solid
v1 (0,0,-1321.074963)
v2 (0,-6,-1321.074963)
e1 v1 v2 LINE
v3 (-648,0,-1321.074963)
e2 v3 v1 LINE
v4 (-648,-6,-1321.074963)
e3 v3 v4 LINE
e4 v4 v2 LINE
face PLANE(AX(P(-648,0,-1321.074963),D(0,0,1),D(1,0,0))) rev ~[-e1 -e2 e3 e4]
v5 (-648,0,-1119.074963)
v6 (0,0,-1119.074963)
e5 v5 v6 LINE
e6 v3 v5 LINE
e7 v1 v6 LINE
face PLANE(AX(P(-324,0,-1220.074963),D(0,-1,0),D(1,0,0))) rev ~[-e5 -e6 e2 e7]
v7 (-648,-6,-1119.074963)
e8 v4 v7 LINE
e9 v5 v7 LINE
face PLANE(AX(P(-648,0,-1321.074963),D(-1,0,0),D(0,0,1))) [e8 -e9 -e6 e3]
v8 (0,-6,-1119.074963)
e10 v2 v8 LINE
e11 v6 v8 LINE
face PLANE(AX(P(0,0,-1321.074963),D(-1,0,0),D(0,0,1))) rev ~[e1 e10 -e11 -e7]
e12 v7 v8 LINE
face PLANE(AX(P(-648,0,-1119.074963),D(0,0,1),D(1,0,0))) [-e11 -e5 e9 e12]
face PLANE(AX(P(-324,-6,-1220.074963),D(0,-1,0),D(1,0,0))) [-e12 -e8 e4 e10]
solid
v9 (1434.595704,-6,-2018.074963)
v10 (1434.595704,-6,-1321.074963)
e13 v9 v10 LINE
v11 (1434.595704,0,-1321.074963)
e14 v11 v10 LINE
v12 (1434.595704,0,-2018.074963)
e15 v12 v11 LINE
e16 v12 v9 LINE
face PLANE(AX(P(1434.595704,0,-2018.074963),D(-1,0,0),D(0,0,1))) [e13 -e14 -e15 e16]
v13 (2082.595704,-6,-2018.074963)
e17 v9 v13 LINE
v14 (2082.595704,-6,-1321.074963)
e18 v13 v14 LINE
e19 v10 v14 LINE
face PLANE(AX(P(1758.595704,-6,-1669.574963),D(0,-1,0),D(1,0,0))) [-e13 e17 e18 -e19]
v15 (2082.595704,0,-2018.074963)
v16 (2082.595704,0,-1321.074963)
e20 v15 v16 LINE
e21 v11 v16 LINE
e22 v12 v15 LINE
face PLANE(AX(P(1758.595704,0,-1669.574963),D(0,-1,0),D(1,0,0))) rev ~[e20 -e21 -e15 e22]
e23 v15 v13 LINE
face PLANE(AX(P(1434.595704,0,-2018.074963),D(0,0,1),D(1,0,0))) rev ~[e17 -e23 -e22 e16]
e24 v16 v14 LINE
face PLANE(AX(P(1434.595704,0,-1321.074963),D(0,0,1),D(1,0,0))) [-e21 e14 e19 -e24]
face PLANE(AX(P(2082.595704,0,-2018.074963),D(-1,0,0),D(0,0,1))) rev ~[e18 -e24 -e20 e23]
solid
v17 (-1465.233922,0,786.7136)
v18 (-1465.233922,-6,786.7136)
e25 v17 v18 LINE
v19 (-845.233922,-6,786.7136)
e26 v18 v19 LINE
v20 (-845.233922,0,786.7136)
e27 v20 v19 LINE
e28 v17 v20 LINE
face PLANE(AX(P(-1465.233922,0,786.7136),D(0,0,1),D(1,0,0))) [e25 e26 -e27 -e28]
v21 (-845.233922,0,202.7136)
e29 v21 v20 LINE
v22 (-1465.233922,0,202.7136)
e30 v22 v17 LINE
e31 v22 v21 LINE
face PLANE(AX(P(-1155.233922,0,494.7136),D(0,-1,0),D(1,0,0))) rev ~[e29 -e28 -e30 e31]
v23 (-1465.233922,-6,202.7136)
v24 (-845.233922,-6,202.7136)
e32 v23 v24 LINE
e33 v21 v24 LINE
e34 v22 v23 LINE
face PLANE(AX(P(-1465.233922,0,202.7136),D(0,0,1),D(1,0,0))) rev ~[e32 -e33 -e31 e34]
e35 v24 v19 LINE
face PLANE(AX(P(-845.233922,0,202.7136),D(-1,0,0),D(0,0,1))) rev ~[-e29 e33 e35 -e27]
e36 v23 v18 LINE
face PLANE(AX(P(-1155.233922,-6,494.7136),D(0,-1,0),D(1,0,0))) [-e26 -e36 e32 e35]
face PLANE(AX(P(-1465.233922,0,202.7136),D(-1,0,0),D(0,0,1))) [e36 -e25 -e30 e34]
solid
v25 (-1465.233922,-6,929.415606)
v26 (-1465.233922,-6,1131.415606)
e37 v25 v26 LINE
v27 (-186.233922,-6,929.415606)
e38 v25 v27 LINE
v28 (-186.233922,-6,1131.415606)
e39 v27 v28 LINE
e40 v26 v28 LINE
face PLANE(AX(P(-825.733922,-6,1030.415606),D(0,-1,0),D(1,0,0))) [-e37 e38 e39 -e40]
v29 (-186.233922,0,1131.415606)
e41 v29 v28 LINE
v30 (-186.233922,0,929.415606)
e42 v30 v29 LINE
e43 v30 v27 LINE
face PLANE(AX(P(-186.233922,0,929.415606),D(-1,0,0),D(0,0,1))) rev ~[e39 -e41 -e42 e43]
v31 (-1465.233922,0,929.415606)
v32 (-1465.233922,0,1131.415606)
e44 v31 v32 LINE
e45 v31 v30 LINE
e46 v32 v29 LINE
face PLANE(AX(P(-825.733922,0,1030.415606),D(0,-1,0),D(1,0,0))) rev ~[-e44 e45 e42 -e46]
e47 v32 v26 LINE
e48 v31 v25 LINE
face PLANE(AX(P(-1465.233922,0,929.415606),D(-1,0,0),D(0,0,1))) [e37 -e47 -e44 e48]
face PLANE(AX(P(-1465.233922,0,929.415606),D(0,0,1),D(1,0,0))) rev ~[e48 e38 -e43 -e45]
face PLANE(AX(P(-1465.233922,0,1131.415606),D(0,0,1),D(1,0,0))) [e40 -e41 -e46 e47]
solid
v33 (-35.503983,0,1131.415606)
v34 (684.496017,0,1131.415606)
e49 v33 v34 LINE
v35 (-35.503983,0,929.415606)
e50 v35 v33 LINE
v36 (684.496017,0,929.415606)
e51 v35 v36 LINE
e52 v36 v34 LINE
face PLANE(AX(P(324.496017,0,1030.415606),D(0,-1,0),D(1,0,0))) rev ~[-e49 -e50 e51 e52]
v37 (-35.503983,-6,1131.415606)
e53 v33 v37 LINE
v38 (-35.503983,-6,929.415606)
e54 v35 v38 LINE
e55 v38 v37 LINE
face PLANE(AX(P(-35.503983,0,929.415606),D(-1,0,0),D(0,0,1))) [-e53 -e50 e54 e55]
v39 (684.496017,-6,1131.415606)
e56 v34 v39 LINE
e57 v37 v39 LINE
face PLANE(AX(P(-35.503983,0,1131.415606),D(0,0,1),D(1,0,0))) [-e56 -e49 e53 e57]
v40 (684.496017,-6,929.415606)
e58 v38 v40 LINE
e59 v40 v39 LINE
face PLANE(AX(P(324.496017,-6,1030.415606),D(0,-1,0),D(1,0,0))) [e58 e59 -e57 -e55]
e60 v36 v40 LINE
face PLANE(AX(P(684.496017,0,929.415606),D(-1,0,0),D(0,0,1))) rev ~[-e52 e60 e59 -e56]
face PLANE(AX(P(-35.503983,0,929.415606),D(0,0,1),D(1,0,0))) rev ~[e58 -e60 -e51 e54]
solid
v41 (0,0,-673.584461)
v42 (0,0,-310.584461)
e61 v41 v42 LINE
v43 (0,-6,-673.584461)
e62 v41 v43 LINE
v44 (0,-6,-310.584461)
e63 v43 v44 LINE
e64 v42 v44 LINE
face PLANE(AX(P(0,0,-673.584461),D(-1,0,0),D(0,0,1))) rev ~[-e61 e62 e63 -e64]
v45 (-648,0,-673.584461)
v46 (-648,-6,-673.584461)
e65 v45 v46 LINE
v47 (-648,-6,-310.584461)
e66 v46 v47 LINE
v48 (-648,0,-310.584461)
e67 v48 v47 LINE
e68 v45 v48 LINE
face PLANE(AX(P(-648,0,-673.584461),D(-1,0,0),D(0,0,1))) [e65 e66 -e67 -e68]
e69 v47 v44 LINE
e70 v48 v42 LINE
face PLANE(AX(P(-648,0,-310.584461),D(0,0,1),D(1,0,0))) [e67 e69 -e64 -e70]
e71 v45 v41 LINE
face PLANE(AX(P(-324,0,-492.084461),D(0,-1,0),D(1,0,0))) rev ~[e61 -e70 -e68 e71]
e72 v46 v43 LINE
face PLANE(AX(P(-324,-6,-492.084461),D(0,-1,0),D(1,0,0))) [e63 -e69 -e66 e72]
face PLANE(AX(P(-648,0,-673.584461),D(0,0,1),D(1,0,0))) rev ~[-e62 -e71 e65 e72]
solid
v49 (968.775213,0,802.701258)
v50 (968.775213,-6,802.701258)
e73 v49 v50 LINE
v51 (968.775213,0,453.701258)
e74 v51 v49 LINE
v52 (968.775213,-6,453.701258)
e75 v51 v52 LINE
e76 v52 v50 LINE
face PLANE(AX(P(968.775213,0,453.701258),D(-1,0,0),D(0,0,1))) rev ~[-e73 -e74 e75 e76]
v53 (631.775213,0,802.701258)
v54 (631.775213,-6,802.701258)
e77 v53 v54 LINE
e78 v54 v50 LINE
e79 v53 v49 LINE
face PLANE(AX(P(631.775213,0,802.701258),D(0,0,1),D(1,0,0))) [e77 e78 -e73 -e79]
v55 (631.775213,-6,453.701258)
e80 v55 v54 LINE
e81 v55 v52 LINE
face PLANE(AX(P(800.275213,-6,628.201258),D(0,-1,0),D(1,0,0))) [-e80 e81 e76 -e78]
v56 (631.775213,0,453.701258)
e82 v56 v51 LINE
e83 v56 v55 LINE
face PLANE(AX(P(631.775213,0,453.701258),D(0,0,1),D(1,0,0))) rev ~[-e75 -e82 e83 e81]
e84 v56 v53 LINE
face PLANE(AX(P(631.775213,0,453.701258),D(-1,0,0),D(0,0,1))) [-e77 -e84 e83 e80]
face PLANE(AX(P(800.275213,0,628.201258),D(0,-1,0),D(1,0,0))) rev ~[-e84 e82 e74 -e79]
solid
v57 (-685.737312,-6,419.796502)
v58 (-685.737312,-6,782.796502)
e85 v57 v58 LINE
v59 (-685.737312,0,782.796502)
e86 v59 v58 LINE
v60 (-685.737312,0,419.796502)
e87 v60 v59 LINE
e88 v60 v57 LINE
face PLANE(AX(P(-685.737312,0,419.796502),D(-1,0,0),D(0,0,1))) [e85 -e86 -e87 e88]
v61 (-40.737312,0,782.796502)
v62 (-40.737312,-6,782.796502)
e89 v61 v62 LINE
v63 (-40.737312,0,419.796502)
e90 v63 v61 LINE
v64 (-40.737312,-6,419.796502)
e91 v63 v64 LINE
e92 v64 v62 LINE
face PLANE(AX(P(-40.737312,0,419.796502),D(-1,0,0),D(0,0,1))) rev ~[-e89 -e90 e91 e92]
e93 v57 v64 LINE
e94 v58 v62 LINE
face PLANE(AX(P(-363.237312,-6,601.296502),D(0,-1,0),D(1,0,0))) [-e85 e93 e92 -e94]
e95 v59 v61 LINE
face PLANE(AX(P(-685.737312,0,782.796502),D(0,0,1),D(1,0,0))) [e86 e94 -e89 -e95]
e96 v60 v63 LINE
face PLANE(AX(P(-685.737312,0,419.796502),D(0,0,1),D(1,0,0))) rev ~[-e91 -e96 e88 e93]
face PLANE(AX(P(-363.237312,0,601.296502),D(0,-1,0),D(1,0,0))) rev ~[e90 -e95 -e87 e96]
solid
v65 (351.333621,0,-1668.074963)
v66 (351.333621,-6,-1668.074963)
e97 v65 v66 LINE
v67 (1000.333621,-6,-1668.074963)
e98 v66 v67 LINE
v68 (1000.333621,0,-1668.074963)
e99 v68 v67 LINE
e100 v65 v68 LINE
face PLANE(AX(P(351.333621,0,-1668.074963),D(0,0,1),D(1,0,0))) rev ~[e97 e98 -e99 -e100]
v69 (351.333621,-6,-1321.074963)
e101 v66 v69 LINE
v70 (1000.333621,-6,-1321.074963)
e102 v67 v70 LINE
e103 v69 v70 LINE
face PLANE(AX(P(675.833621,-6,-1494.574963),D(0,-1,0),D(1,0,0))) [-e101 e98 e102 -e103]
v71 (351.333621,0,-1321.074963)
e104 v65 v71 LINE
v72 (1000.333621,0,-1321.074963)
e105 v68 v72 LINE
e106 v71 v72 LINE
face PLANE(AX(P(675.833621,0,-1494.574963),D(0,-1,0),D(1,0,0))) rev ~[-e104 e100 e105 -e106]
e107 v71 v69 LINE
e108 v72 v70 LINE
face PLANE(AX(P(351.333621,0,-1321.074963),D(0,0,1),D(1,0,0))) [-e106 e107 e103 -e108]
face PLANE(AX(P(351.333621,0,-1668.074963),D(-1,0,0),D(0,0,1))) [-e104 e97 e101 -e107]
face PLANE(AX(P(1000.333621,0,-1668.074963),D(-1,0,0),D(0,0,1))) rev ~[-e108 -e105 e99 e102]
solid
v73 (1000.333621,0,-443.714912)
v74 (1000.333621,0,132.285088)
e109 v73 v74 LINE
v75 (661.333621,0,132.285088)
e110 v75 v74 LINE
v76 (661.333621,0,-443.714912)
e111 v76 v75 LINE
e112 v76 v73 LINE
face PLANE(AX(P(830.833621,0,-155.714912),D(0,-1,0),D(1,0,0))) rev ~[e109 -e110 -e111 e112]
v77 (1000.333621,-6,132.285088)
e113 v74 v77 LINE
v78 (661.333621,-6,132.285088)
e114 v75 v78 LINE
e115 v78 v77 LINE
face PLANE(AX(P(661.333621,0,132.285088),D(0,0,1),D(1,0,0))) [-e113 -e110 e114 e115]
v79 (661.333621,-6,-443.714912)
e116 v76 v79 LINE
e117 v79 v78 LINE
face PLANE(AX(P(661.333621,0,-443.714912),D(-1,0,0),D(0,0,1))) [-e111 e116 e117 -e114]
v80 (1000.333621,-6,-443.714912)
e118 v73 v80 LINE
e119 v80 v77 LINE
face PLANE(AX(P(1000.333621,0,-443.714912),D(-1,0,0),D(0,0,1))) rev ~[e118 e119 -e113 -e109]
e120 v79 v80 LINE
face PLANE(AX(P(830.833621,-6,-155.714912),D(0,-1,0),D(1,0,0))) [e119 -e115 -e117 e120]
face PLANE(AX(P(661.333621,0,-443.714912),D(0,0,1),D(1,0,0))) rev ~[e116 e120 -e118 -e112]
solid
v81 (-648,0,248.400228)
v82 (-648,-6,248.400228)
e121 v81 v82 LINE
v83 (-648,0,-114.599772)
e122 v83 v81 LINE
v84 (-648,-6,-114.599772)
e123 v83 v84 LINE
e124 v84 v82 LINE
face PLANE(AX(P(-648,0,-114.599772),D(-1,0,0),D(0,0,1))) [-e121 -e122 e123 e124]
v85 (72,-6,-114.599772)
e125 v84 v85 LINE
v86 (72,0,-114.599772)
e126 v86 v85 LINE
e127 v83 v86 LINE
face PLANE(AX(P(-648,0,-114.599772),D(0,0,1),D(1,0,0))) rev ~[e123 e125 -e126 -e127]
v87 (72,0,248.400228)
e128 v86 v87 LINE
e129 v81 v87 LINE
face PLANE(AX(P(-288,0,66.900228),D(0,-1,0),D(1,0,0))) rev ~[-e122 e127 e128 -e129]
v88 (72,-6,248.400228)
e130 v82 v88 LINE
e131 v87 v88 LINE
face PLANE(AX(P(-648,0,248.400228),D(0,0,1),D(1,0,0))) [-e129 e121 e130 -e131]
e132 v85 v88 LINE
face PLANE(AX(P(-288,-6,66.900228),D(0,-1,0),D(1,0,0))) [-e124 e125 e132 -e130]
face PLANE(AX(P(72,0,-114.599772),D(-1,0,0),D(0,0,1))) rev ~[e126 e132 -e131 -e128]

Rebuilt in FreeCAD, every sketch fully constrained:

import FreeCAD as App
import Part
import Sketcher
from FreeCAD import Vector

doc = App.newDocument("Part")
body = doc.addObject("PartDesign::Body", "Body")
body.AllowCompound = True

# Sketch on XZ plane
sketch1 = doc.addObject("Sketcher::SketchObject", "Sketch")
body.addObject(sketch1)
sketch1.AttachmentSupport = (doc.XZ_Plane, [""])
sketch1.MapMode = "FlatFace"
sketch1.addGeometry([
    Part.LineSegment(Vector(-1465.233922, 1131.415606, 0), Vector(-1465.233922, 929.415606, 0)),  # 0
    Part.LineSegment(Vector(-1465.233922, 929.415606, 0), Vector(-186.233922, 929.415606, 0)),  # 1
    Part.LineSegment(Vector(-186.233922, 929.415606, 0), Vector(-186.233922, 1131.415606, 0)),  # 2
    Part.LineSegment(Vector(-186.233922, 1131.415606, 0), Vector(-1465.233922, 1131.415606, 0)),  # 3
    Part.LineSegment(Vector(-35.503983, 1131.415606, 0), Vector(-35.503983, 929.415606, 0)),  # 4
    Part.LineSegment(Vector(-35.503983, 929.415606, 0), Vector(684.496017, 929.415606, 0)),  # 5
    Part.LineSegment(Vector(684.496017, 929.415606, 0), Vector(684.496017, 1131.415606, 0)),  # 6
    Part.LineSegment(Vector(684.496017, 1131.415606, 0), Vector(-35.503983, 1131.415606, 0)),  # 7
    Part.LineSegment(Vector(-1465.233922, 786.7136, 0), Vector(-1465.233922, 202.7136, 0)),  # 8
    Part.LineSegment(Vector(-1465.233922, 202.7136, 0), Vector(-845.233922, 202.7136, 0)),  # 9
    Part.LineSegment(Vector(-845.233922, 202.7136, 0), Vector(-845.233922, 786.7136, 0)),  # 10
    Part.LineSegment(Vector(-845.233922, 786.7136, 0), Vector(-1465.233922, 786.7136, 0)),  # 11
    Part.LineSegment(Vector(-685.737312, 782.796502, 0), Vector(-685.737312, 419.796502, 0)),  # 12
    Part.LineSegment(Vector(-685.737312, 419.796502, 0), Vector(-40.737312, 419.796502, 0)),  # 13
    Part.LineSegment(Vector(-40.737312, 419.796502, 0), Vector(-40.737312, 782.796502, 0)),  # 14
    Part.LineSegment(Vector(-40.737312, 782.796502, 0), Vector(-685.737312, 782.796502, 0)),  # 15
    Part.LineSegment(Vector(-648, 248.400228, 0), Vector(-648, -114.599772, 0)),  # 16
    Part.LineSegment(Vector(-648, -114.599772, 0), Vector(72, -114.599772, 0)),  # 17
    Part.LineSegment(Vector(72, -114.599772, 0), Vector(72, 248.400228, 0)),  # 18
    Part.LineSegment(Vector(72, 248.400228, 0), Vector(-648, 248.400228, 0)),  # 19
    Part.LineSegment(Vector(-648, -310.584461, 0), Vector(-648, -673.584461, 0)),  # 20
    Part.LineSegment(Vector(-648, -673.584461, 0), Vector(0, -673.584461, 0)),  # 21
    Part.LineSegment(Vector(0, -673.584461, 0), Vector(0, -310.584461, 0)),  # 22
    Part.LineSegment(Vector(0, -310.584461, 0), Vector(-648, -310.584461, 0)),  # 23
    Part.LineSegment(Vector(-648, -1119.074963, 0), Vector(-648, -1321.074963, 0)),  # 24
    Part.LineSegment(Vector(-648, -1321.074963, 0), Vector(0, -1321.074963, 0)),  # 25
    Part.LineSegment(Vector(0, -1321.074963, 0), Vector(0, -1119.074963, 0)),  # 26
    Part.LineSegment(Vector(0, -1119.074963, 0), Vector(-648, -1119.074963, 0)),  # 27
    Part.LineSegment(Vector(631.775213, 802.701258, 0), Vector(631.775213, 453.701258, 0)),  # 28
    Part.LineSegment(Vector(631.775213, 453.701258, 0), Vector(968.775213, 453.701258, 0)),  # 29
    Part.LineSegment(Vector(968.775213, 453.701258, 0), Vector(968.775213, 802.701258, 0)),  # 30
    Part.LineSegment(Vector(968.775213, 802.701258, 0), Vector(631.775213, 802.701258, 0)),  # 31
    Part.LineSegment(Vector(661.333621, 132.285088, 0), Vector(661.333621, -443.714912, 0)),  # 32
    Part.LineSegment(Vector(661.333621, -443.714912, 0), Vector(1000.333621, -443.714912, 0)),  # 33
    Part.LineSegment(Vector(1000.333621, -443.714912, 0), Vector(1000.333621, 132.285088, 0)),  # 34
    Part.LineSegment(Vector(1000.333621, 132.285088, 0), Vector(661.333621, 132.285088, 0)),  # 35
    Part.LineSegment(Vector(351.333621, -1321.074963, 0), Vector(351.333621, -1668.074963, 0)),  # 36
    Part.LineSegment(Vector(351.333621, -1668.074963, 0), Vector(1000.333621, -1668.074963, 0)),  # 37
    Part.LineSegment(Vector(1000.333621, -1668.074963, 0), Vector(1000.333621, -1321.074963, 0)),  # 38
    Part.LineSegment(Vector(1000.333621, -1321.074963, 0), Vector(351.333621, -1321.074963, 0)),  # 39
    Part.LineSegment(Vector(1434.595704, -1321.074963, 0), Vector(1434.595704, -2018.074963, 0)),  # 40
    Part.LineSegment(Vector(1434.595704, -2018.074963, 0), Vector(2082.595704, -2018.074963, 0)),  # 41
    Part.LineSegment(Vector(2082.595704, -2018.074963, 0), Vector(2082.595704, -1321.074963, 0)),  # 42
    Part.LineSegment(Vector(2082.595704, -1321.074963, 0), Vector(1434.595704, -1321.074963, 0)),  # 43
], False)
sketch1.addConstraint([
    Sketcher.Constraint("Coincident", 0, 2, 1, 1),
    Sketcher.Constraint("Coincident", 1, 2, 2, 1),
    Sketcher.Constraint("Coincident", 2, 2, 3, 1),
    Sketcher.Constraint("Coincident", 3, 2, 0, 1),
    Sketcher.Constraint("Coincident", 4, 2, 5, 1),
    Sketcher.Constraint("Coincident", 5, 2, 6, 1),
    Sketcher.Constraint("Coincident", 6, 2, 7, 1),
    Sketcher.Constraint("Coincident", 7, 2, 4, 1),
    Sketcher.Constraint("Coincident", 8, 2, 9, 1),
    Sketcher.Constraint("Coincident", 9, 2, 10, 1),
    Sketcher.Constraint("Coincident", 10, 2, 11, 1),
    Sketcher.Constraint("Coincident", 11, 2, 8, 1),
    Sketcher.Constraint("Coincident", 12, 2, 13, 1),
    Sketcher.Constraint("Coincident", 13, 2, 14, 1),
    Sketcher.Constraint("Coincident", 14, 2, 15, 1),
    Sketcher.Constraint("Coincident", 15, 2, 12, 1),
    Sketcher.Constraint("Coincident", 16, 2, 17, 1),
    Sketcher.Constraint("Coincident", 17, 2, 18, 1),
    Sketcher.Constraint("Coincident", 18, 2, 19, 1),
    Sketcher.Constraint("Coincident", 19, 2, 16, 1),
    Sketcher.Constraint("Coincident", 20, 2, 21, 1),
    Sketcher.Constraint("Coincident", 21, 2, 22, 1),
    Sketcher.Constraint("Coincident", 22, 2, 23, 1),
    Sketcher.Constraint("Coincident", 23, 2, 20, 1),
    Sketcher.Constraint("Coincident", 24, 2, 25, 1),
    Sketcher.Constraint("Coincident", 25, 2, 26, 1),
    Sketcher.Constraint("Coincident", 26, 2, 27, 1),
    Sketcher.Constraint("Coincident", 27, 2, 24, 1),
    Sketcher.Constraint("Coincident", 28, 2, 29, 1),
    Sketcher.Constraint("Coincident", 29, 2, 30, 1),
    Sketcher.Constraint("Coincident", 30, 2, 31, 1),
    Sketcher.Constraint("Coincident", 31, 2, 28, 1),
    Sketcher.Constraint("Coincident", 32, 2, 33, 1),
    Sketcher.Constraint("Coincident", 33, 2, 34, 1),
    Sketcher.Constraint("Coincident", 34, 2, 35, 1),
    Sketcher.Constraint("Coincident", 35, 2, 32, 1),
    Sketcher.Constraint("Coincident", 36, 2, 37, 1),
    Sketcher.Constraint("Coincident", 37, 2, 38, 1),
    Sketcher.Constraint("Coincident", 38, 2, 39, 1),
    Sketcher.Constraint("Coincident", 39, 2, 36, 1),
    Sketcher.Constraint("Coincident", 40, 2, 41, 1),
    Sketcher.Constraint("Coincident", 41, 2, 42, 1),
    Sketcher.Constraint("Coincident", 42, 2, 43, 1),
    Sketcher.Constraint("Coincident", 43, 2, 40, 1),
    Sketcher.Constraint("Vertical", 0),
    Sketcher.Constraint("Horizontal", 1),
    Sketcher.Constraint("Vertical", 2),
    Sketcher.Constraint("Horizontal", 3),
    Sketcher.Constraint("Vertical", 4),
    Sketcher.Constraint("Horizontal", 5),
    Sketcher.Constraint("Vertical", 6),
    Sketcher.Constraint("Horizontal", 7),
    Sketcher.Constraint("Vertical", 8),
    Sketcher.Constraint("Horizontal", 9),
    Sketcher.Constraint("Vertical", 10),
    Sketcher.Constraint("Horizontal", 11),
    Sketcher.Constraint("Vertical", 12),
    Sketcher.Constraint("Horizontal", 13),
    Sketcher.Constraint("Vertical", 14),
    Sketcher.Constraint("Horizontal", 15),
    Sketcher.Constraint("Vertical", 16),
    Sketcher.Constraint("Horizontal", 17),
    Sketcher.Constraint("Vertical", 18),
    Sketcher.Constraint("Horizontal", 19),
    Sketcher.Constraint("Vertical", 20),
    Sketcher.Constraint("Horizontal", 21),
    Sketcher.Constraint("Vertical", 22),
    Sketcher.Constraint("Horizontal", 23),
    Sketcher.Constraint("Vertical", 24),
    Sketcher.Constraint("Horizontal", 25),
    Sketcher.Constraint("Vertical", 26),
    Sketcher.Constraint("Horizontal", 27),
    Sketcher.Constraint("Vertical", 28),
    Sketcher.Constraint("Horizontal", 29),
    Sketcher.Constraint("Vertical", 30),
    Sketcher.Constraint("Horizontal", 31),
    Sketcher.Constraint("Vertical", 32),
    Sketcher.Constraint("Horizontal", 33),
    Sketcher.Constraint("Vertical", 34),
    Sketcher.Constraint("Horizontal", 35),
    Sketcher.Constraint("Vertical", 36),
    Sketcher.Constraint("Horizontal", 37),
    Sketcher.Constraint("Vertical", 38),
    Sketcher.Constraint("Horizontal", 39),
    Sketcher.Constraint("Vertical", 40),
    Sketcher.Constraint("Horizontal", 41),
    Sketcher.Constraint("Vertical", 42),
    Sketcher.Constraint("Horizontal", 43),
    Sketcher.Constraint("PointOnObject", 21, 2, -2),
    Sketcher.Constraint("PointOnObject", 25, 2, -2),
    Sketcher.Constraint("Horizontal", 1, 2, 4, 2),
    Sketcher.Constraint("Horizontal", 3, 2, 6, 2),
    Sketcher.Constraint("Horizontal", 25, 2, 38, 2),
    Sketcher.Constraint("Horizontal", 39, 2, 42, 2),
    Sketcher.Constraint("Vertical", 3, 2, 8, 2),
    Sketcher.Constraint("Vertical", 19, 2, 20, 2),
    Sketcher.Constraint("Vertical", 23, 2, 24, 2),
    Sketcher.Constraint("Vertical", 34, 2, 37, 2),
    Sketcher.Constraint("Equal", 7, 17),
    Sketcher.Constraint("Equal", 27, 41),
    Sketcher.Constraint("Equal", 14, 16),
    Sketcher.Constraint("Equal", 18, 20),
    Sketcher.Constraint("Equal", 6, 24),
    Sketcher.Constraint("DistanceX", 1, 1, 1, 2, 1279.0),
    Sketcher.Constraint("DistanceX", 5, 1, 5, 2, 720.0),
    Sketcher.Constraint("DistanceX", 9, 1, 9, 2, 620.0),
    Sketcher.Constraint("DistanceX", 13, 1, 13, 2, 645.0),
    Sketcher.Constraint("DistanceX", 21, 1, 21, 2, 648.0),
    Sketcher.Constraint("DistanceX", 29, 1, 29, 2, 337.0),
    Sketcher.Constraint("DistanceX", 33, 1, 33, 2, 339.0),
    Sketcher.Constraint("DistanceX", 37, 1, 37, 2, 649.0),
    Sketcher.Constraint("DistanceY", 0, 2, 0, 1, 202.0),
    Sketcher.Constraint("DistanceY", 8, 2, 8, 1, 584.0),
    Sketcher.Constraint("DistanceY", 12, 2, 12, 1, 363.0),
    Sketcher.Constraint("DistanceY", 28, 2, 28, 1, 349.0),
    Sketcher.Constraint("DistanceY", 32, 2, 32, 1, 576.0),
    Sketcher.Constraint("DistanceY", 36, 2, 36, 1, 347.0),
    Sketcher.Constraint("DistanceY", 40, 2, 40, 1, 697.0),
    Sketcher.Constraint("DistanceY", -1, 1, 8, 2, 202.7136),
    Sketcher.Constraint("DistanceY", -1, 1, 12, 2, 419.796502),
    Sketcher.Constraint("DistanceY", 24, 2, 20, 2, 647.490502),
    Sketcher.Constraint("DistanceX", 0, 2, -1, 1, 1465.233922),
    Sketcher.Constraint("DistanceX", 12, 2, -1, 1, 685.737312),
    Sketcher.Constraint("DistanceY", 16, 2, -1, 1, 114.599772),
    Sketcher.Constraint("DistanceY", 20, 2, -1, 1, 673.584461),
    Sketcher.Constraint("DistanceY", -1, 1, 28, 2, 453.701258),
    Sketcher.Constraint("DistanceX", -1, 1, 32, 2, 661.333621),
    Sketcher.Constraint("DistanceY", -1, 1, 34, 2, 132.285088),
    Sketcher.Constraint("DistanceX", 1, 2, 4, 2, 150.729939),
    Sketcher.Constraint("DistanceY", 18, 2, 4, 2, 681.015378),
    Sketcher.Constraint("DistanceX", 28, 2, 33, 2, 368.558408),
    Sketcher.Constraint("DistanceX", -1, 1, 40, 2, 1434.595704),
])
pad1 = doc.addObject("PartDesign::Pad", "Pad")
body.addObject(pad1)
pad1.Profile = sketch1
pad1.Length = 6

doc.recompute()
